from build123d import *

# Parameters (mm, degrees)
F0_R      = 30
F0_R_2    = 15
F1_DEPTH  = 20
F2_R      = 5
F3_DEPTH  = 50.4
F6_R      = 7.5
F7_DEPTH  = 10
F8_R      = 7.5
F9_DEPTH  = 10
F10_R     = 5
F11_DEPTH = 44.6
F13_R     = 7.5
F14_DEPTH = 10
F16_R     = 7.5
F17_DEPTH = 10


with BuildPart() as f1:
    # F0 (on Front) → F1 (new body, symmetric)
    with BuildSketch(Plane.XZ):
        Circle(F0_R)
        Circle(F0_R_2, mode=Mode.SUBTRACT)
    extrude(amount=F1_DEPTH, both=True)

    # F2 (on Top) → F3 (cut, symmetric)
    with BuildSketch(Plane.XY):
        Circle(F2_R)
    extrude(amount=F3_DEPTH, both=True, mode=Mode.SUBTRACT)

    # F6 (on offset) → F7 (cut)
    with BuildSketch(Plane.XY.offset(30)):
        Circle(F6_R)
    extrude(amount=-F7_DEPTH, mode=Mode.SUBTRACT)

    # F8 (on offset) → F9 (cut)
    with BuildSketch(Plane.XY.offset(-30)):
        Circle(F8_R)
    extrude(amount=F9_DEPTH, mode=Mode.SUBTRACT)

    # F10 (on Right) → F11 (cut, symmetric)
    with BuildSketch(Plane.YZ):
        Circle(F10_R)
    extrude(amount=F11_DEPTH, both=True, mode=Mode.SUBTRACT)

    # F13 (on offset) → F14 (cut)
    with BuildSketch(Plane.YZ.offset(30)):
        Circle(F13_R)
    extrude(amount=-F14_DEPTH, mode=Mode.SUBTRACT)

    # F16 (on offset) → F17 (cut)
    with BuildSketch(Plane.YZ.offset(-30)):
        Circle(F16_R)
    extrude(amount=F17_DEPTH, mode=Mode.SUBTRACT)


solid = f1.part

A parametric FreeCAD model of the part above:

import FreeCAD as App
import Part
import Sketcher

V = App.Vector

doc = App.newDocument("Part")
body = doc.addObject("PartDesign::Body", "Body")

sketch1 = body.newObject("Sketcher::SketchObject", "Sketch")
sketch1.AttachmentSupport = (doc.getObject("XZ_Plane"), [""])
sketch1.MapMode = "FlatFace"
sketch1.addGeometry([
    Part.Circle(V(0, 0, 0), V(0, 0, 1), 30),
    Part.Circle(V(0, 0, 0), V(0, 0, 1), 15),
], False)
sketch1.addConstraint([
    Sketcher.Constraint("Coincident", 0, 3, -1, 1),
    Sketcher.Constraint("Coincident", 1, 3, -1, 1),
    Sketcher.Constraint("Diameter", 0, 60.0),
    Sketcher.Constraint("Diameter", 1, 30.0),
])
pad1 = body.newObject("PartDesign::Pad", "Pad")
pad1.Profile = sketch1
pad1.Length = 40
pad1.Midplane = True

sketch2 = body.newObject("Sketcher::SketchObject", "Sketch001")
sketch2.AttachmentSupport = (doc.getObject("XY_Plane"), [""])
sketch2.MapMode = "FlatFace"
sketch2.addGeometry(Part.Circle(V(0, 0, 0), V(0, 0, 1), 5), False)
sketch2.addConstraint([
    Sketcher.Constraint("Coincident", 0, 3, -1, 1),
    Sketcher.Constraint("Diameter", 0, 10.0),
])
pocket1 = body.newObject("PartDesign::Pocket", "Pocket")
pocket1.Profile = sketch2
pocket1.Length = 100.8
pocket1.Midplane = True

sketch3 = body.newObject("Sketcher::SketchObject", "Sketch002")
sketch3.AttachmentSupport = (doc.getObject("XY_Plane"), [""])
sketch3.MapMode = "FlatFace"
sketch3.AttachmentOffset = App.Placement(V(0, 0, 30), App.Rotation())
sketch3.addGeometry(Part.Circle(V(0, 0, 0), V(0, 0, 1), 8), False)
sketch3.addConstraint([
    Sketcher.Constraint("Coincident", 0, 3, -1, 1),
    Sketcher.Constraint("Diameter", 0, 15.0),
])
pocket2 = body.newObject("PartDesign::Pocket", "Pocket001")
pocket2.Profile = sketch3
pocket2.Length = 10

sketch4 = body.newObject("Sketcher::SketchObject", "Sketch003")
sketch4.AttachmentSupport = (doc.getObject("XY_Plane"), [""])
sketch4.MapMode = "FlatFace"
sketch4.AttachmentOffset = App.Placement(V(0, 0, -30), App.Rotation())
sketch4.addGeometry(Part.Circle(V(0, 0, 0), V(0, 0, 1), 8), False)
sketch4.addConstraint([
    Sketcher.Constraint("Coincident", 0, 3, -1, 1),
    Sketcher.Constraint("Diameter", 0, 15.0),
])
pocket3 = body.newObject("PartDesign::Pocket", "Pocket002")
pocket3.Profile = sketch4
pocket3.Length = 10
pocket3.Reversed = True

sketch5 = body.newObject("Sketcher::SketchObject", "Sketch004")
sketch5.AttachmentSupport = (doc.getObject("YZ_Plane"), [""])
sketch5.MapMode = "FlatFace"
sketch5.addGeometry(Part.Circle(V(0, 0, 0), V(0, 0, 1), 5), False)
sketch5.addConstraint([
    Sketcher.Constraint("Coincident", 0, 3, -1, 1),
    Sketcher.Constraint("Diameter", 0, 10.0),
])
pocket4 = body.newObject("PartDesign::Pocket", "Pocket003")
pocket4.Profile = sketch5
pocket4.Length = 89.2
pocket4.Midplane = True

sketch6 = body.newObject("Sketcher::SketchObject", "Sketch005")
sketch6.AttachmentSupport = (doc.getObject("YZ_Plane"), [""])
sketch6.MapMode = "FlatFace"
sketch6.AttachmentOffset = App.Placement(V(0, 0, 30), App.Rotation())
sketch6.addGeometry(Part.Circle(V(0, 0, 0), V(0, 0, 1), 8), False)
sketch6.addConstraint([
    Sketcher.Constraint("Coincident", 0, 3, -1, 1),
    Sketcher.Constraint("Diameter", 0, 15.0),
])
pocket5 = body.newObject("PartDesign::Pocket", "Pocket004")
pocket5.Profile = sketch6
pocket5.Length = 10

sketch7 = body.newObject("Sketcher::SketchObject", "Sketch006")
sketch7.AttachmentSupport = (doc.getObject("YZ_Plane"), [""])
sketch7.MapMode = "FlatFace"
sketch7.AttachmentOffset = App.Placement(V(0, 0, -30), App.Rotation())
sketch7.addGeometry(Part.Circle(V(0, 0, 0), V(0, 0, 1), 8), False)
sketch7.addConstraint([
    Sketcher.Constraint("Coincident", 0, 3, -1, 1),
    Sketcher.Constraint("Diameter", 0, 15.0),
])
pocket6 = body.newObject("PartDesign::Pocket", "Pocket005")
pocket6.Profile = sketch7
pocket6.Length = 10
pocket6.Reversed = True

doc.recompute()
